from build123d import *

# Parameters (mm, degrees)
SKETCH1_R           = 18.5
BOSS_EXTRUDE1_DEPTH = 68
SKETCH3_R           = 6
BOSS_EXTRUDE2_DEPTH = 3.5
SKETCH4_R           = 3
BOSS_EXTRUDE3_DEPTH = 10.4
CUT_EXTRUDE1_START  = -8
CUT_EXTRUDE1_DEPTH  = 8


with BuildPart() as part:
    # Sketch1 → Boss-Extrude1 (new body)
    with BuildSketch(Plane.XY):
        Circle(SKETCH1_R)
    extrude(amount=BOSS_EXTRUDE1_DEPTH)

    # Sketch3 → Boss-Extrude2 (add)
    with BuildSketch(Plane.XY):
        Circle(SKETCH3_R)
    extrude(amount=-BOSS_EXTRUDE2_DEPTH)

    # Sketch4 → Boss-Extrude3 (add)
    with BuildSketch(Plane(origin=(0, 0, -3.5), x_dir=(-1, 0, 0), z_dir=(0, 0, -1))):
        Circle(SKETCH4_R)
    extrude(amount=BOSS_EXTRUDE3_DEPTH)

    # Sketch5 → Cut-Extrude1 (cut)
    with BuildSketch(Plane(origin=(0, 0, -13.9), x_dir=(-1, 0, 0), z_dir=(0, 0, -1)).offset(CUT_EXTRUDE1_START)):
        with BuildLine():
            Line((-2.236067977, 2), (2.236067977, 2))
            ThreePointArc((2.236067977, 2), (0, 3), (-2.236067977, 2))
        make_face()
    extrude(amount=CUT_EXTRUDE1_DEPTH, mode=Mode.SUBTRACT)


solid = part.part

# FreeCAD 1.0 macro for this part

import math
import FreeCAD as App
import Part
import Sketcher

V = App.Vector
Q = App.Units.Quantity

doc = App.newDocument("Part")
body = doc.addObject("PartDesign::Body", "Body")

# Sketch on XY plane
sketch1 = body.newObject("Sketcher::SketchObject", "Sketch")
sketch1.AttachmentSupport = (doc.getObject("XY_Plane"), [""])
sketch1.MapMode = "FlatFace"
sketch1.addGeometry(Part.Circle(V(0, 0, 0), V(0, 0, 1), 18), False)
sketch1.addConstraint(Sketcher.Constraint("Coincident", 0, 3, -1, 1))
sketch1.addConstraint(Sketcher.Constraint("Diameter", 0, Q("37 mm")))
pad1 = body.newObject("PartDesign::Pad", "Pad")
pad1.Profile = sketch1
pad1.Length = 68

# Sketch on XY plane
sketch2 = body.newObject("Sketcher::SketchObject", "Sketch001")
sketch2.AttachmentSupport = (doc.getObject("XY_Plane"), [""])
sketch2.MapMode = "FlatFace"
sketch2.addGeometry(Part.Circle(V(0, 0, 0), V(0, 0, 1), 6), False)
sketch2.addConstraint(Sketcher.Constraint("Coincident", 0, 3, -1, 1))
sketch2.addConstraint(Sketcher.Constraint("Diameter", 0, Q("12 mm")))
pad2 = body.newObject("PartDesign::Pad", "Pad001")
pad2.Profile = sketch2
pad2.Length = 3.5
pad2.Reversed = True

# Sketch on XY plane
sketch3 = body.newObject("Sketcher::SketchObject", "Sketch002")
sketch3.AttachmentSupport = (doc.getObject("XY_Plane"), [""])
sketch3.MapMode = "FlatFace"
sketch3.AttachmentOffset = App.Placement(V(0, 0, -3.5), App.Rotation())
sketch3.addGeometry(Part.Circle(V(0, 0, 0), V(0, 0, 1), 3), False)
sketch3.addConstraint(Sketcher.Constraint("Coincident", 0, 3, -1, 1))
sketch3.addConstraint(Sketcher.Constraint("Diameter", 0, Q("6 mm")))
pad3 = body.newObject("PartDesign::Pad", "Pad002")
pad3.Profile = sketch3
pad3.Length = 10.4
pad3.Reversed = True

# Sketch on XY plane
sketch4 = body.newObject("Sketcher::SketchObject", "Sketch003")
sketch4.AttachmentSupport = (doc.getObject("XY_Plane"), [""])
sketch4.MapMode = "FlatFace"
sketch4.AttachmentOffset = App.Placement(V(0, 0, -5.9), App.Rotation())
sketch4.addGeometry(Part.LineSegment(V(2.2, 2, 0), V(-2.2, 2, 0)), False)
sketch4.addGeometry(Part.ArcOfCircle(Part.Circle(V(0, 0, 0), V(0, 0, 1), 3), math.radians(42), math.radians(138)), False)
sketch4.addConstraint(Sketcher.Constraint("Coincident", 0, 1, 1, 1))
sketch4.addConstraint(Sketcher.Constraint("Coincident", 1, 2, 0, 2))
sketch4.addConstraint(Sketcher.Constraint("Horizontal", 0))
sketch4.addConstraint(Sketcher.Constraint("Coincident", 1, 3, -1, 1))
sketch4.addConstraint(Sketcher.Constraint("Radius", 1, Q("3 mm")))
sketch4.addConstraint(Sketcher.Constraint("DistanceY", -1, 1, 0, 1, Q("2 mm")))
pocket1 = body.newObject("PartDesign::Pocket", "Pocket")
pocket1.Profile = sketch4
pocket1.Length = 8

doc.recompute()
